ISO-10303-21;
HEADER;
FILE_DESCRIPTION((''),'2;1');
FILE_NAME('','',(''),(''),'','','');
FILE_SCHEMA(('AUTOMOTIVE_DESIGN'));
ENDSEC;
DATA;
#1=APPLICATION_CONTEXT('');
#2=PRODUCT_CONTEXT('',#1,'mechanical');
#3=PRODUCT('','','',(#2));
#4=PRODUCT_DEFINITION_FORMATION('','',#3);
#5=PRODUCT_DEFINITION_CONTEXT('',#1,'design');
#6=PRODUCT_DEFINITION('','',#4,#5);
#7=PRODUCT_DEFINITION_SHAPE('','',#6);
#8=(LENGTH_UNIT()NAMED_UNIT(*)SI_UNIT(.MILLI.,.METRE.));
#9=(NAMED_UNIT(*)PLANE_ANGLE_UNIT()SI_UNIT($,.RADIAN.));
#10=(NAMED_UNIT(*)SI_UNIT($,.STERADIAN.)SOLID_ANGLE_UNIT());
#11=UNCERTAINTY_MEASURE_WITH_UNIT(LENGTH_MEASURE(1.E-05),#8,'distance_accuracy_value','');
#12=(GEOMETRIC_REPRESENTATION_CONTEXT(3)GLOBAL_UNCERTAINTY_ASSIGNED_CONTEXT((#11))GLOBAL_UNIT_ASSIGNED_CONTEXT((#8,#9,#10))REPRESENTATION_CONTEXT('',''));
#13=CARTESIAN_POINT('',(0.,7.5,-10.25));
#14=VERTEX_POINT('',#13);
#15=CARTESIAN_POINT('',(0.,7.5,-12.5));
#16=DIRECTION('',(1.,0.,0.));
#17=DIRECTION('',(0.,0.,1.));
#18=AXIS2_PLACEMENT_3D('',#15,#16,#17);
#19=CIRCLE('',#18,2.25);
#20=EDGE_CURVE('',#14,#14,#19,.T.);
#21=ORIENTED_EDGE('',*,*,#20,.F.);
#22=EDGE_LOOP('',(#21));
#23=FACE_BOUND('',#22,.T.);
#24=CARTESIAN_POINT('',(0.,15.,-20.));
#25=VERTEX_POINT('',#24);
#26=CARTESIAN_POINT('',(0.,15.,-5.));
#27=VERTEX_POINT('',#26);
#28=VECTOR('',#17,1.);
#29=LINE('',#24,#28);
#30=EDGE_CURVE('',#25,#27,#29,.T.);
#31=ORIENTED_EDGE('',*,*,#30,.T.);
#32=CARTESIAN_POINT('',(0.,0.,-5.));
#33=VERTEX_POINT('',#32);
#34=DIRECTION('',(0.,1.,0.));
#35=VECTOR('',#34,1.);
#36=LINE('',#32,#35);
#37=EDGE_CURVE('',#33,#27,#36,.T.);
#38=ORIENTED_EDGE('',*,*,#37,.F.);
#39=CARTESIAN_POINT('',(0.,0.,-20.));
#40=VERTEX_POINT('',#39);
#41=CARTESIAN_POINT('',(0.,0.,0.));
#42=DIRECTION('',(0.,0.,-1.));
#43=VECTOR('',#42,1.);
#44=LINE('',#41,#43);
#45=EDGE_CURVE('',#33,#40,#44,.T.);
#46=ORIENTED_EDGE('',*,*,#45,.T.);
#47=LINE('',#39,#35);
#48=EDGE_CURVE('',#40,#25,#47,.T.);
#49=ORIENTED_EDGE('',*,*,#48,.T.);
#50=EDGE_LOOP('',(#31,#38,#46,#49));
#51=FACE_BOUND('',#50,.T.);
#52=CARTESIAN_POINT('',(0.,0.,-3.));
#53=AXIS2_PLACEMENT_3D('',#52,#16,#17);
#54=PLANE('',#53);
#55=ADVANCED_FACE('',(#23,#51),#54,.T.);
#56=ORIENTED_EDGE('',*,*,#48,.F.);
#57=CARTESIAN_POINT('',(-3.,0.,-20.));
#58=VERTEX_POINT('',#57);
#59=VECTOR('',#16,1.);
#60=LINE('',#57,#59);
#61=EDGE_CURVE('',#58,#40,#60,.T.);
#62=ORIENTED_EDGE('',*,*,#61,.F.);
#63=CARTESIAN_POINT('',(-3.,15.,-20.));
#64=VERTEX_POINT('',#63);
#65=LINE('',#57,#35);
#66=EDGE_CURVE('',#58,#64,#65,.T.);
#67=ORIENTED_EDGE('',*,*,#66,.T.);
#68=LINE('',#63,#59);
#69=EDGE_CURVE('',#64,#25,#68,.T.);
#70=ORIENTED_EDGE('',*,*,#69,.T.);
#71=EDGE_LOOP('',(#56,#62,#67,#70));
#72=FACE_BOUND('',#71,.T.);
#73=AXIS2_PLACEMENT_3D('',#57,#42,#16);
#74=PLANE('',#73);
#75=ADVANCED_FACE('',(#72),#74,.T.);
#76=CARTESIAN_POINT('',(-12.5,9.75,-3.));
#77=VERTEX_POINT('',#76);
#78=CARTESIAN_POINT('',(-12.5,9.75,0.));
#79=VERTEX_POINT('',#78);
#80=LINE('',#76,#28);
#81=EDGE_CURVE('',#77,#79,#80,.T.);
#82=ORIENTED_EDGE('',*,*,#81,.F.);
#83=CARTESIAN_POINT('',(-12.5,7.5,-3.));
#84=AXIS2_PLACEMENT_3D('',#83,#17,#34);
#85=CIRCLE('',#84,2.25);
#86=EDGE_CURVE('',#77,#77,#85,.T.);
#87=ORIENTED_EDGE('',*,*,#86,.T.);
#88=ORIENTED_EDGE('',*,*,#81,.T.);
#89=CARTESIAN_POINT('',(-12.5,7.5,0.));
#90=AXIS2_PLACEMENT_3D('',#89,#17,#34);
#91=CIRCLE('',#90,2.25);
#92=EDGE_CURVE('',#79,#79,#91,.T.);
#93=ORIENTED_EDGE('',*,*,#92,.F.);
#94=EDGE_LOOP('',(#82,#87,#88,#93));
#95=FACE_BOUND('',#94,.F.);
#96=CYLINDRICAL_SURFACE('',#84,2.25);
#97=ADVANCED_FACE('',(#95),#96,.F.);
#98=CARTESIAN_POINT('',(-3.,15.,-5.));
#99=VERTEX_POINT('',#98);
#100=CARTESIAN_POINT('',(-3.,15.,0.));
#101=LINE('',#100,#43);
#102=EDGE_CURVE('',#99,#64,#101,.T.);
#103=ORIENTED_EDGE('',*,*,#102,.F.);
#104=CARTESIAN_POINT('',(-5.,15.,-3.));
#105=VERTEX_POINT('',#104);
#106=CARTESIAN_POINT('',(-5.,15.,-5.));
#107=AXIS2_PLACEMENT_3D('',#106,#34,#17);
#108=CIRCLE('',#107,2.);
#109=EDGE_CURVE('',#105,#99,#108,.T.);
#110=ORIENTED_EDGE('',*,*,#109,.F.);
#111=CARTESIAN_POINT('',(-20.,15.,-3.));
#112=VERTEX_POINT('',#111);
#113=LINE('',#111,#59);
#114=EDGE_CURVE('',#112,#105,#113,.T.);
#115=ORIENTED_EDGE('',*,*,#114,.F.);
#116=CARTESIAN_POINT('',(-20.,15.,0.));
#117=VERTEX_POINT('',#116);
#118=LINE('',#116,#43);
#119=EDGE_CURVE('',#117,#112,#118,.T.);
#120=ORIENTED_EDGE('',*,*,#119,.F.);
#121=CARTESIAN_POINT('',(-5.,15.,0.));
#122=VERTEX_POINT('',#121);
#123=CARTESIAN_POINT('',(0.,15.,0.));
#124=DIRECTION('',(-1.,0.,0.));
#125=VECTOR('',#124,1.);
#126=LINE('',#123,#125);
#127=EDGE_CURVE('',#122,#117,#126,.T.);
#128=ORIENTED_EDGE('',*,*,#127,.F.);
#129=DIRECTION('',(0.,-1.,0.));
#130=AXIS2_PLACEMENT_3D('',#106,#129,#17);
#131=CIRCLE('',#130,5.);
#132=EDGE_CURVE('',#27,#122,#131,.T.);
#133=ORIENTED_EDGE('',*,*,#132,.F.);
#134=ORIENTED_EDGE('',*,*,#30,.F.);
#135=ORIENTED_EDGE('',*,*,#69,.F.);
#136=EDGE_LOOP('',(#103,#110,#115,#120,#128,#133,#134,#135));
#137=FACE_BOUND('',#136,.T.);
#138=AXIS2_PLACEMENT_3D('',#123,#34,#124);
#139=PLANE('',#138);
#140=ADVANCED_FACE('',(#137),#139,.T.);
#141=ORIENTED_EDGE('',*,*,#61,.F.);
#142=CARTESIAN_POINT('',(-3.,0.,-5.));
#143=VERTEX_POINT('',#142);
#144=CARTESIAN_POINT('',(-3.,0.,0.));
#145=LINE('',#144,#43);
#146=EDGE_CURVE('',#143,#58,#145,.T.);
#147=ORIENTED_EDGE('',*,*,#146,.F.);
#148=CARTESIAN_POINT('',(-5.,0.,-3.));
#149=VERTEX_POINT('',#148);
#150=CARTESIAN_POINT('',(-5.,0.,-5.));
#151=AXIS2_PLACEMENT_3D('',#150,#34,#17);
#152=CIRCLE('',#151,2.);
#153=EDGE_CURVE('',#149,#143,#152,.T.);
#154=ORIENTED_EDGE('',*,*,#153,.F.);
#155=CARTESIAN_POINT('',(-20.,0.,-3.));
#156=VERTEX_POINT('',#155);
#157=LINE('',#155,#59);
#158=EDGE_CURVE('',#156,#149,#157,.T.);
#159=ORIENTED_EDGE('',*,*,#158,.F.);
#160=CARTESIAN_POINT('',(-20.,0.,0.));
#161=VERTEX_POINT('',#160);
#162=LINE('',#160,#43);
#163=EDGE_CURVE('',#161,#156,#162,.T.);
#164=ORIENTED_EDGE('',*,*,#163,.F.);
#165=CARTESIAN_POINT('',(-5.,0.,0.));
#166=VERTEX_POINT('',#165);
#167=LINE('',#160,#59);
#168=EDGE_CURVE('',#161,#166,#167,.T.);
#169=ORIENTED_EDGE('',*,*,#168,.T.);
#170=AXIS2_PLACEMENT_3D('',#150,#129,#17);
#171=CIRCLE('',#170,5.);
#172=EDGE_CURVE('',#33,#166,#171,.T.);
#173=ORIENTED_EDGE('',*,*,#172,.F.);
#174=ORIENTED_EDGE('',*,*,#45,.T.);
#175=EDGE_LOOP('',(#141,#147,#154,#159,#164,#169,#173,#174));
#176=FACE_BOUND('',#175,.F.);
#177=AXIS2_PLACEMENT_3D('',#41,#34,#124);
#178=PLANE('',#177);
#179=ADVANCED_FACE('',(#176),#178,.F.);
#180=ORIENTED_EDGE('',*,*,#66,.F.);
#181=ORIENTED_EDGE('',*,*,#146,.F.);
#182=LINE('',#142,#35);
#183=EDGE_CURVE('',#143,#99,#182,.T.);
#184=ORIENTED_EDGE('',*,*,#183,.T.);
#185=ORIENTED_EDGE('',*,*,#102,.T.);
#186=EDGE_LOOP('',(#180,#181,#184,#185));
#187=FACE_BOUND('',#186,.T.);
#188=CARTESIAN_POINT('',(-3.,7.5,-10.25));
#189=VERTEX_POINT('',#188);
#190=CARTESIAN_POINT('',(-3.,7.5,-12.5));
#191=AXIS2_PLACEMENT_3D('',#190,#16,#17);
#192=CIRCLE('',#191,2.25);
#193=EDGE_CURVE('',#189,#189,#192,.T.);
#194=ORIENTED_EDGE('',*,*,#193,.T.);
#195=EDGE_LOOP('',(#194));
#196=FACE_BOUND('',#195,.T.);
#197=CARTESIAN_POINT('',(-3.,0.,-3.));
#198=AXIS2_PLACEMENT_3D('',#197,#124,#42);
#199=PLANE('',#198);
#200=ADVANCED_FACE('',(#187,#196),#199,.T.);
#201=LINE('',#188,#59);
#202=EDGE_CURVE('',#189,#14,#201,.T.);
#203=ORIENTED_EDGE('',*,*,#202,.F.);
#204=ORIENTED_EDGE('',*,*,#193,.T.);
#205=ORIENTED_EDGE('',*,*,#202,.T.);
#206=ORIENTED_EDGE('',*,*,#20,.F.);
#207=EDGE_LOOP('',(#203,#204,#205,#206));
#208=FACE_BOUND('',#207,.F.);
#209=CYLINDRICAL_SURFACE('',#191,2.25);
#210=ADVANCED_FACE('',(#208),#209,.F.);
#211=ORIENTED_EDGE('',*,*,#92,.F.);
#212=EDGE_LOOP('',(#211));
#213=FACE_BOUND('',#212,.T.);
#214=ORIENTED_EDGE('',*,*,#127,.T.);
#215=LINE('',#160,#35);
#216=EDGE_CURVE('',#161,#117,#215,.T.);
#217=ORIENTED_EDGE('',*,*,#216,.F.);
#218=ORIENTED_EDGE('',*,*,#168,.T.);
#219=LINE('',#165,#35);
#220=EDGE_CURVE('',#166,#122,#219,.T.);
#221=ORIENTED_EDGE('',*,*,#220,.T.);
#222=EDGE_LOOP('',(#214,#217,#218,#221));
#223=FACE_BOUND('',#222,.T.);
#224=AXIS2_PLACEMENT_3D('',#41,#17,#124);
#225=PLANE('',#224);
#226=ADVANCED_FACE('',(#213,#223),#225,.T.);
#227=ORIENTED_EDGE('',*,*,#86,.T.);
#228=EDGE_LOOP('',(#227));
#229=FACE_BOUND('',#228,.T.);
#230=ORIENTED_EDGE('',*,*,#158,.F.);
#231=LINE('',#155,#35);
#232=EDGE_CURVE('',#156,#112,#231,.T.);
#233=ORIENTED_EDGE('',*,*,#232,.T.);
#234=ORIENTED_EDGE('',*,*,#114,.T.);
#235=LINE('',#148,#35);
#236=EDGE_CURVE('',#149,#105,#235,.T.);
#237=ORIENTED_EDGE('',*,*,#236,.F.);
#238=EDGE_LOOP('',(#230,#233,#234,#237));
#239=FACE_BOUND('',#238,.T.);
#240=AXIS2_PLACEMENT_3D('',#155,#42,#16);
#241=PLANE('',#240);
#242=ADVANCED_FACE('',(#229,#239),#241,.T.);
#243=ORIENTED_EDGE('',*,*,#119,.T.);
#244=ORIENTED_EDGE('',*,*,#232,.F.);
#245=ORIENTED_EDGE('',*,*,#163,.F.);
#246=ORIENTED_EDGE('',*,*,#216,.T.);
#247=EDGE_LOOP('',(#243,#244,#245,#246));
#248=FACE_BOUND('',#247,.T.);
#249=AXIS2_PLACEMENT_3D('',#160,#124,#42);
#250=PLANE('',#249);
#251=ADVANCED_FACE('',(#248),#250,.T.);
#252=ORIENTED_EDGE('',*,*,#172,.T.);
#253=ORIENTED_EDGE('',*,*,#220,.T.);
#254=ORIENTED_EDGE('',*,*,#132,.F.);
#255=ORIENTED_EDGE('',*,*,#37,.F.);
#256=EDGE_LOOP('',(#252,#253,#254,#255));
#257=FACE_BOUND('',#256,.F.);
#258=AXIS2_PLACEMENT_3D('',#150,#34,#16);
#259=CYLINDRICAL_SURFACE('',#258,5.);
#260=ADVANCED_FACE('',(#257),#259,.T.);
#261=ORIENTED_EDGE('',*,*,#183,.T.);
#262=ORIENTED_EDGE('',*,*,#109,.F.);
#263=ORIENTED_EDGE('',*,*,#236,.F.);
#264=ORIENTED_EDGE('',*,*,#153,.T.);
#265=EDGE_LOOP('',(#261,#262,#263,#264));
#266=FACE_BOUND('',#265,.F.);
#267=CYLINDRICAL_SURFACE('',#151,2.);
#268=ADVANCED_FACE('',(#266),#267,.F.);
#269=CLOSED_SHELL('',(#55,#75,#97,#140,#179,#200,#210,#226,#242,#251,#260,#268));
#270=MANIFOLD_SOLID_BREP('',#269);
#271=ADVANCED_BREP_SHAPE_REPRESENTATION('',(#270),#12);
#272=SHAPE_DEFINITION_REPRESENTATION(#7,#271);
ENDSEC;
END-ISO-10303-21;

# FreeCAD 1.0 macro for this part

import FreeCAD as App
import Part
import Sketcher


def edges_at(feature, points):
    """Names of the edges that pass closest to the given points."""
    edges = feature.Shape.Edges
    near = lambda p: min(range(len(edges)), key=lambda i: edges[i].distToShape(Part.Vertex(*p))[0])
    return sorted({f"Edge{near(p) + 1}" for p in points})

doc = App.newDocument("Part")
body = doc.addObject("PartDesign::Body", "Body")

sketch1 = body.newObject("Sketcher::SketchObject", "Sketch")
sketch1.AttachmentSupport = (doc.getObject("XZ_Plane"), [""])
sketch1.MapMode = "FlatFace"
sketch1.addGeometry([
    Part.LineSegment(App.Vector(0, 0, 0), App.Vector(0, -20, 0)),
    Part.LineSegment(App.Vector(0, -20, 0), App.Vector(-3, -20, 0)),
    Part.LineSegment(App.Vector(-3, -20, 0), App.Vector(-3, -3, 0)),
    Part.LineSegment(App.Vector(-3, -3, 0), App.Vector(-20, -3, 0)),
    Part.LineSegment(App.Vector(-20, -3, 0), App.Vector(-20, 0, 0)),
    Part.LineSegment(App.Vector(-20, 0, 0), App.Vector(0, 0, 0)),
], False)
sketch1.addConstraint([
    Sketcher.Constraint("Coincident", 0, 2, 1, 1),
    Sketcher.Constraint("Coincident", 1, 2, 2, 1),
    Sketcher.Constraint("Coincident", 2, 2, 3, 1),
    Sketcher.Constraint("Coincident", 3, 2, 4, 1),
    Sketcher.Constraint("Coincident", 4, 2, 5, 1),
    Sketcher.Constraint("Coincident", 5, 2, 0, 1),
    Sketcher.Constraint("Vertical", 0),
    Sketcher.Constraint("Horizontal", 1),
    Sketcher.Constraint("Vertical", 2),
    Sketcher.Constraint("Horizontal", 3),
    Sketcher.Constraint("Vertical", 4),
    Sketcher.Constraint("Horizontal", 5),
    Sketcher.Constraint("Coincident", 5, 2, -1, 1),
    Sketcher.Constraint("Equal", 5, 0),
    Sketcher.Constraint("Equal", 3, 2),
    Sketcher.Constraint("DistanceX", 1, 2, 1, 1, 3.0),
    Sketcher.Constraint("DistanceX", 5, 1, 5, 2, 20.0),
])
pad1 = body.newObject("PartDesign::Pad", "Pad")
pad1.Profile = sketch1
pad1.Length = 15
pad1.Reversed = True
doc.recompute()

fillet = body.newObject("PartDesign::Fillet", "Fillet")
fillet.Base = (pad1, edges_at(pad1, [(-3, 7.5, -3)]))
fillet.Radius = 2
doc.recompute()

fillet2 = body.newObject("PartDesign::Fillet", "Fillet001")
fillet2.Base = (fillet, edges_at(fillet, [(0, 7.5, 0)]))
fillet2.Radius = 5

sketch2 = body.newObject("Sketcher::SketchObject", "Sketch001")
sketch2.AttachmentSupport = (doc.getObject("YZ_Plane"), [""])
sketch2.MapMode = "FlatFace"
sketch2.AttachmentOffset = App.Placement(App.Vector(0, 0, -3), App.Rotation())
sketch2.addGeometry(Part.Circle(App.Vector(7.5, -12.5, 0), App.Vector(0, 0, 1), 2.2), False)
sketch2.addConstraint([
    Sketcher.Constraint("Diameter", 0, 4.5),
    Sketcher.Constraint("DistanceX", -1, 1, 0, 3, 7.5),
    Sketcher.Constraint("DistanceY", 0, 3, -1, 1, 12.5),
])
doc.recompute()
hole = body.newObject("PartDesign::Hole", "Hole")
hole.Profile = sketch2
hole.ThreadType = "None"
hole.Diameter = 4.5
hole.DepthType = "ThroughAll"
hole.Reversed = True

sketch3 = body.newObject("Sketcher::SketchObject", "Sketch002")
sketch3.AttachmentSupport = (doc.getObject("XY_Plane"), [""])
sketch3.MapMode = "FlatFace"
sketch3.AttachmentOffset = App.Placement(App.Vector(0, 0, -3), App.Rotation())
sketch3.addGeometry(Part.Circle(App.Vector(-12.5, 7.5, 0), App.Vector(0, 0, 1), 2.2), False)
sketch3.addConstraint([
    Sketcher.Constraint("Diameter", 0, 4.5),
    Sketcher.Constraint("DistanceX", 0, 3, -1, 1, 12.5),
    Sketcher.Constraint("DistanceY", -1, 1, 0, 3, 7.5),
])
doc.recompute()
hole2 = body.newObject("PartDesign::Hole", "Hole001")
hole2.Profile = sketch3
hole2.ThreadType = "None"
hole2.Diameter = 4.5
hole2.DepthType = "ThroughAll"
hole2.Reversed = True

doc.recompute()
